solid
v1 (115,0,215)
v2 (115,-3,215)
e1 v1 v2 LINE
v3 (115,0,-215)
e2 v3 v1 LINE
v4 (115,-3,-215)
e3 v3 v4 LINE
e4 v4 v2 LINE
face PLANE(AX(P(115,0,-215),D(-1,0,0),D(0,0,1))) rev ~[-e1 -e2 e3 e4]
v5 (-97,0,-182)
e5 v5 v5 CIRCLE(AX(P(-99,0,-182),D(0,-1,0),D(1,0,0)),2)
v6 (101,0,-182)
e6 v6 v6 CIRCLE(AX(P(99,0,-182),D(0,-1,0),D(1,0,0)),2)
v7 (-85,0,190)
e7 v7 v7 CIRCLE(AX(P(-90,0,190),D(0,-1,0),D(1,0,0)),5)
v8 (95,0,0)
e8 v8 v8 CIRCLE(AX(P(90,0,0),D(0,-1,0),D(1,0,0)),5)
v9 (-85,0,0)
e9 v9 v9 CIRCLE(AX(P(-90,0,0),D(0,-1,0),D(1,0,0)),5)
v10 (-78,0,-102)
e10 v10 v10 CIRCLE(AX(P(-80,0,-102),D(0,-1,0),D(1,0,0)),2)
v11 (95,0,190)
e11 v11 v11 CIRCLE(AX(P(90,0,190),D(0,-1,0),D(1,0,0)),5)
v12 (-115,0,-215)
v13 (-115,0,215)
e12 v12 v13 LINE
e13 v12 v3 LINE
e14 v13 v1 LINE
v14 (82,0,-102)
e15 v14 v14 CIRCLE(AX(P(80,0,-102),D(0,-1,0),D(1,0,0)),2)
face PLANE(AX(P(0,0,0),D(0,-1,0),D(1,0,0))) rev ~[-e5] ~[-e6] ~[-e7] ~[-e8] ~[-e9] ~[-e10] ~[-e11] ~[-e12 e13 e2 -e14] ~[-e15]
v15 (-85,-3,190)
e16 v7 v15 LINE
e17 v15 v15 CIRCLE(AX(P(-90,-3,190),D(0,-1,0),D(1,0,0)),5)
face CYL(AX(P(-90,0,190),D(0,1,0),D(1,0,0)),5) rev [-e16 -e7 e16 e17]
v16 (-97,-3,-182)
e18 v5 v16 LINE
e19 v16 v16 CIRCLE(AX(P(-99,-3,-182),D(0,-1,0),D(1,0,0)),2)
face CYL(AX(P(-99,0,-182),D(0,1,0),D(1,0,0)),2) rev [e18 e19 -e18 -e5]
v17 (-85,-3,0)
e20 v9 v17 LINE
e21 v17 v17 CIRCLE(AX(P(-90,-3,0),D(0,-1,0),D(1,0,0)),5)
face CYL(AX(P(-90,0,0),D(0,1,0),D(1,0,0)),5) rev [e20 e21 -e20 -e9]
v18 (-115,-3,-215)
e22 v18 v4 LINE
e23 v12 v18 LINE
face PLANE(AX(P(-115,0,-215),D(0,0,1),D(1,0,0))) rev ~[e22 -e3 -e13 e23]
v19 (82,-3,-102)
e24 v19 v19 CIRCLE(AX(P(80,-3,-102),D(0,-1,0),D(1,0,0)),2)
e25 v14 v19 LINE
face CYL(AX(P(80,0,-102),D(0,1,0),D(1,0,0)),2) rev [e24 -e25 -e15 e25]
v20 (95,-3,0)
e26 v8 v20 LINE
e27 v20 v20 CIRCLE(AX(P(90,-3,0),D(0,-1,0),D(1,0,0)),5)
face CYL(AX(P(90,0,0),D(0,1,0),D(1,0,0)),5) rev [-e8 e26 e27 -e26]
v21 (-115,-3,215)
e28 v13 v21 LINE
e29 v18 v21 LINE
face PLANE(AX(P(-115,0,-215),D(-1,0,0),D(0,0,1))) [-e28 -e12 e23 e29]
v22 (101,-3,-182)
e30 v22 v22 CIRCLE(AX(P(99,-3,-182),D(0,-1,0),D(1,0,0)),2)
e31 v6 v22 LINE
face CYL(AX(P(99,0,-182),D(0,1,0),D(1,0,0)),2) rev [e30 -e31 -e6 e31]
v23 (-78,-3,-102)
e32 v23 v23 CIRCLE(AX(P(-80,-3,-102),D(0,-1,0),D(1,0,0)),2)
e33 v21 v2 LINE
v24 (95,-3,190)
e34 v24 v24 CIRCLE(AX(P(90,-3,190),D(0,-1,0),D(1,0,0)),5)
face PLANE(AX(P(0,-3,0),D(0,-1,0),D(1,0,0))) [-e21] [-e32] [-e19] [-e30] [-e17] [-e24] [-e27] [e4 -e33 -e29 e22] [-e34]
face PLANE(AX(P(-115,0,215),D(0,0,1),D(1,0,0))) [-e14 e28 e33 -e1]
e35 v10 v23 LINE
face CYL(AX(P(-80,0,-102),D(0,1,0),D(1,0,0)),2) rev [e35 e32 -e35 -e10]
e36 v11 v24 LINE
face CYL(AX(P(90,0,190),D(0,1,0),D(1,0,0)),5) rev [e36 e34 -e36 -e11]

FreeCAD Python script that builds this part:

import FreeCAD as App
import Part
import Sketcher


def add_polygon(sketch, points):
    """Adds a closed chain of lines whose ends are joined by coincident constraints."""
    first, n = sketch.GeometryCount, len(points)
    for a, b in zip(points, points[1:] + points[:1]):
        sketch.addGeometry(Part.LineSegment(App.Vector(*a, 0), App.Vector(*b, 0)), False)
    for i in range(n):
        sketch.addConstraint(Sketcher.Constraint("Coincident", first + i, 2, first + (i + 1) % n, 1))

doc = App.newDocument("Part")
body = doc.addObject("PartDesign::Body", "Body")

# Sketch on XZ plane
sketch1 = body.newObject("Sketcher::SketchObject", "Sketch")
sketch1.AttachmentSupport = (doc.getObject("XZ_Plane"), [""])
sketch1.MapMode = "FlatFace"
add_polygon(sketch1, [(-115, 215), (-115, -215), (115, -215), (115, 215)])  # lines 0-3
sketch1.addGeometry(Part.Circle(App.Vector(-99, -182, 0), App.Vector(0, 0, 1), 2), False)  # 4
sketch1.addGeometry(Part.Circle(App.Vector(-80, -102, 0), App.Vector(0, 0, 1), 2), False)  # 5
sketch1.addGeometry(Part.Circle(App.Vector(-90, 0, 0), App.Vector(0, 0, 1), 5), False)  # 6
sketch1.addGeometry(Part.Circle(App.Vector(99, -182, 0), App.Vector(0, 0, 1), 2), False)  # 7
sketch1.addGeometry(Part.Circle(App.Vector(80, -102, 0), App.Vector(0, 0, 1), 2), False)  # 8
sketch1.addGeometry(Part.Circle(App.Vector(90, 0, 0), App.Vector(0, 0, 1), 5), False)  # 9
sketch1.addGeometry(Part.Circle(App.Vector(-90, 190, 0), App.Vector(0, 0, 1), 5), False)  # 10
sketch1.addGeometry(Part.Circle(App.Vector(90, 190, 0), App.Vector(0, 0, 1), 5), False)  # 11
sketch1.addConstraint(Sketcher.Constraint("Vertical", 0))
sketch1.addConstraint(Sketcher.Constraint("Horizontal", 1))
sketch1.addConstraint(Sketcher.Constraint("Vertical", 2))
sketch1.addConstraint(Sketcher.Constraint("Horizontal", 3))
sketch1.addConstraint(Sketcher.Constraint("Equal", 4, 5))
sketch1.addConstraint(Sketcher.Constraint("Equal", 5, 7))
sketch1.addConstraint(Sketcher.Constraint("Equal", 7, 8))
sketch1.addConstraint(Sketcher.Constraint("Equal", 6, 9))
sketch1.addConstraint(Sketcher.Constraint("Equal", 9, 10))
sketch1.addConstraint(Sketcher.Constraint("Equal", 10, 11))
sketch1.addConstraint(Sketcher.Constraint("Symmetric", 6, 3, 9, 3, -1, 1))
sketch1.addConstraint(Sketcher.Constraint("Symmetric", 0, 2, 2, 2, -1, 1))
sketch1.addConstraint(Sketcher.Constraint("Symmetric", 4, 3, 7, 3, -2))
sketch1.addConstraint(Sketcher.Constraint("Symmetric", 5, 3, 8, 3, -2))
sketch1.addConstraint(Sketcher.Constraint("Symmetric", 10, 3, 11, 3, -2))
sketch1.addConstraint(Sketcher.Constraint("PointOnObject", 6, 3, -1))
sketch1.addConstraint(Sketcher.Constraint("Vertical", 6, 3, 10, 3))
sketch1.addConstraint(Sketcher.Constraint("Diameter", 4, 4.0))
sketch1.addConstraint(Sketcher.Constraint("Diameter", 6, 10.0))
sketch1.addConstraint(Sketcher.Constraint("DistanceX", 1, 1, 1, 2, 230.0))
sketch1.addConstraint(Sketcher.Constraint("DistanceY", 0, 2, 0, 1, 430.0))
sketch1.addConstraint(Sketcher.Constraint("DistanceX", 4, 3, -1, 1, 99.0))
sketch1.addConstraint(Sketcher.Constraint("DistanceY", 4, 3, -1, 1, 182.0))
sketch1.addConstraint(Sketcher.Constraint("DistanceX", 5, 3, -1, 1, 80.0))
sketch1.addConstraint(Sketcher.Constraint("DistanceY", 5, 3, -1, 1, 102.0))
sketch1.addConstraint(Sketcher.Constraint("DistanceX", 6, 3, -1, 1, 90.0))
sketch1.addConstraint(Sketcher.Constraint("DistanceY", -1, 1, 10, 3, 190.0))
pad1 = body.newObject("PartDesign::Pad", "Pad")
pad1.Profile = sketch1
pad1.Length = 3

doc.recompute()
